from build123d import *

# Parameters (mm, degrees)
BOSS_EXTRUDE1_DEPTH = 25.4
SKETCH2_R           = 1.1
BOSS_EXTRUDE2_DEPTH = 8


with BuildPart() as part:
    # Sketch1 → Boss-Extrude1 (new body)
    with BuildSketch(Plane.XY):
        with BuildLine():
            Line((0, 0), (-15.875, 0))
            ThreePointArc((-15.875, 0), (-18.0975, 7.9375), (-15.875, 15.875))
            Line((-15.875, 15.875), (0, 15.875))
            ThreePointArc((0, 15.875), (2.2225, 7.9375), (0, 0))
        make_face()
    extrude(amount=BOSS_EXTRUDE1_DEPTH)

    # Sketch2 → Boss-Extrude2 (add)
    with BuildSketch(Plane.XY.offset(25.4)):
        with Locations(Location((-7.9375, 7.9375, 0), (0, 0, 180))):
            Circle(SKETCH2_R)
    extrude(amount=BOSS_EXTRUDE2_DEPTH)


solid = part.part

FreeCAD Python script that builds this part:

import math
import FreeCAD as App
import Part
import Sketcher
from FreeCAD import Vector
Q = App.Units.Quantity

doc = App.newDocument("Part")
body = doc.addObject("PartDesign::Body", "Body")

# Sketch on XY plane
sketch1 = body.newObject("Sketcher::SketchObject", "Sketch")
sketch1.AttachmentSupport = (doc.getObject("XY_Plane"), [""])
sketch1.MapMode = "FlatFace"
sketch1.addGeometry(Part.LineSegment(Vector(-16, 0, 0), Vector(0, 0, 0)), False)
sketch1.addGeometry(Part.ArcOfCircle(Part.Circle(Vector(-13, 8, 0), Vector(0, 0, 1), 15), math.radians(-31), math.radians(31)), False)
sketch1.addGeometry(Part.LineSegment(Vector(0, 16, 0), Vector(-16, 16, 0)), False)
sketch1.addGeometry(Part.ArcOfCircle(Part.Circle(Vector(-3, 8, 0), Vector(0, 0, 1), 15), math.radians(149), math.radians(211)), False)
sketch1.addConstraint(Sketcher.Constraint("Coincident", 0, 2, 1, 1))
sketch1.addConstraint(Sketcher.Constraint("Coincident", 1, 2, 2, 1))
sketch1.addConstraint(Sketcher.Constraint("Coincident", 2, 2, 3, 1))
sketch1.addConstraint(Sketcher.Constraint("Coincident", 3, 2, 0, 1))
sketch1.addConstraint(Sketcher.Constraint("Horizontal", 0))
sketch1.addConstraint(Sketcher.Constraint("Horizontal", 2))
sketch1.addConstraint(Sketcher.Constraint("Coincident", 0, 2, -1, 1))
sketch1.addConstraint(Sketcher.Constraint("Equal", 1, 3))
sketch1.addConstraint(Sketcher.Constraint("PointOnObject", 1, 2, -2))
sketch1.addConstraint(Sketcher.Constraint("Horizontal", 1, 3, 3, 3))
sketch1.addConstraint(Sketcher.Constraint("DistanceX", 0, 1, 0, 2, Q("15.875 mm")))
sketch1.addConstraint(Sketcher.Constraint("DistanceY", -1, 1, 1, 2, Q("15.875 mm")))
sketch1.addConstraint(Sketcher.Constraint("Radius", 1, Q("15.285357 mm")))
pad1 = body.newObject("PartDesign::Pad", "Pad")
pad1.Profile = sketch1
pad1.Length = 25.4

# Sketch on XY plane
sketch2 = body.newObject("Sketcher::SketchObject", "Sketch001")
sketch2.AttachmentSupport = (doc.getObject("XY_Plane"), [""])
sketch2.MapMode = "FlatFace"
sketch2.AttachmentOffset = App.Placement(Vector(0, 0, 25.4), App.Rotation())
sketch2.addGeometry(Part.Circle(Vector(-7.9, 7.9, 0), Vector(0, 0, 1), 1.1), False)
sketch2.addConstraint(Sketcher.Constraint("Diameter", 0, Q("2.2 mm")))
sketch2.addConstraint(Sketcher.Constraint("DistanceX", 0, 3, -1, 1, Q("7.9375 mm")))
sketch2.addConstraint(Sketcher.Constraint("DistanceY", -1, 1, 0, 3, Q("7.9375 mm")))
pad2 = body.newObject("PartDesign::Pad", "Pad001")
pad2.Profile = sketch2
pad2.Length = 8

doc.recompute()
